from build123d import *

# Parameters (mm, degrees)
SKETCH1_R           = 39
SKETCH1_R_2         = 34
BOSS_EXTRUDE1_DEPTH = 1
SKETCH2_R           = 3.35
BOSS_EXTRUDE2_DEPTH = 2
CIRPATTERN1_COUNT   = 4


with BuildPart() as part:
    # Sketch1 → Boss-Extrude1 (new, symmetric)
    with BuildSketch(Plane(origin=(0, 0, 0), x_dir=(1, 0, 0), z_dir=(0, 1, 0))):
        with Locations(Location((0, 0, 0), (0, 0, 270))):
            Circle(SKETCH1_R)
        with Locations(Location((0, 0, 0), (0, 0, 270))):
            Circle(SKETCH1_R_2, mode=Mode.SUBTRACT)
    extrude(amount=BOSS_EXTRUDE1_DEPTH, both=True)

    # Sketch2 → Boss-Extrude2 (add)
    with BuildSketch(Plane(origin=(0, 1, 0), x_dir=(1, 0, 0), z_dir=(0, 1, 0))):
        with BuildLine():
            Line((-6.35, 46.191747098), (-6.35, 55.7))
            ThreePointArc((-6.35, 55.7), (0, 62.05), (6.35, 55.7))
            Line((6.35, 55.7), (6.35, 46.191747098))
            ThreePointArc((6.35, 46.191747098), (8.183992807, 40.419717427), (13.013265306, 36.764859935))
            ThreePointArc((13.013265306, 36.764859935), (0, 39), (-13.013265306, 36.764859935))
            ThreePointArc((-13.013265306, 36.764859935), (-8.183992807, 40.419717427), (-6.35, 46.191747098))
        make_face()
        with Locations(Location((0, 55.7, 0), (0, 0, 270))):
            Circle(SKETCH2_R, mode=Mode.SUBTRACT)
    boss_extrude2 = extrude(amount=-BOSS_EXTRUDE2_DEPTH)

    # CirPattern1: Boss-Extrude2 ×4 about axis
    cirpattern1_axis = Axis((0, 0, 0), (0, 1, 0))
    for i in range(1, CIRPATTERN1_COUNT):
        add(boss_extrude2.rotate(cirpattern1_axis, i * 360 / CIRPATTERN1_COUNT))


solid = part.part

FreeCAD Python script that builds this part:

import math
import FreeCAD as App
import Part
import Sketcher

V = App.Vector

doc = App.newDocument("Part")
body = doc.addObject("PartDesign::Body", "Body")

sketch1 = body.newObject("Sketcher::SketchObject", "Sketch")
sketch1.AttachmentSupport = (doc.getObject("XZ_Plane"), [""])
sketch1.MapMode = "FlatFace"
sketch1.addGeometry([
    Part.Circle(V(0, 0, 0), V(0, 0, 1), 39),
    Part.Circle(V(0, 0, 0), V(0, 0, 1), 34),
], False)
sketch1.addConstraint([
    Sketcher.Constraint("Coincident", 0, 3, -1, 1),
    Sketcher.Constraint("Coincident", 1, 3, -1, 1),
    Sketcher.Constraint("Diameter", 0, 78.0),
    Sketcher.Constraint("Diameter", 1, 68.0),
])
pad1 = body.newObject("PartDesign::Pad", "Pad")
pad1.Profile = sketch1
pad1.Length = 2
pad1.Midplane = True

sketch2 = body.newObject("Sketcher::SketchObject", "Sketch001")
sketch2.AttachmentSupport = (doc.getObject("XZ_Plane"), [""])
sketch2.MapMode = "FlatFace"
sketch2.AttachmentOffset = App.Placement(V(0, 0, -1), App.Rotation())
sketch2.addGeometry([
    Part.LineSegment(V(-6.35, -55.7, 0), V(-6.35, -46.191747, 0)),
    Part.ArcOfCircle(Part.Circle(V(-16.35, -46.191747, 0), V(0, 0, 1), 10), math.radians(0), math.radians(70.508108)),
    Part.ArcOfCircle(Part.Circle(V(0, 0, 0), V(0, 0, 1), 39), math.radians(-109.491892), math.radians(-70.508108)),
    Part.ArcOfCircle(Part.Circle(V(16.35, -46.191747, 0), V(0, 0, 1), 10), math.radians(109.491892), math.radians(180)),
    Part.LineSegment(V(6.35, -46.191747, 0), V(6.35, -55.7, 0)),
    Part.ArcOfCircle(Part.Circle(V(0, -55.7, 0), V(0, 0, 1), 6.35), math.radians(180), math.radians(360)),
    Part.Circle(V(0, -55.7, 0), V(0, 0, 1), 3.35),
], False)
sketch2.addConstraint([
    Sketcher.Constraint("Tangent", 0, 2, 1, 1),
    Sketcher.Constraint("Tangent", 1, 2, 2, 1),
    Sketcher.Constraint("Tangent", 2, 2, 3, 1),
    Sketcher.Constraint("Tangent", 3, 2, 4, 1),
    Sketcher.Constraint("Tangent", 4, 2, 5, 2),
    Sketcher.Constraint("Tangent", 5, 1, 0, 1),
    Sketcher.Constraint("Vertical", 0),
    Sketcher.Constraint("Vertical", 4),
    Sketcher.Constraint("Coincident", 2, 3, -1, 1),
    Sketcher.Constraint("Coincident", 6, 3, 5, 3),
    Sketcher.Constraint("Equal", 1, 3),
    Sketcher.Constraint("PointOnObject", 5, 3, -2),
    Sketcher.Constraint("Radius", 1, 10.0),
    Sketcher.Constraint("Radius", 2, 39.0),
    Sketcher.Constraint("Diameter", 6, 6.7),
    Sketcher.Constraint("Radius", 5, 6.35),
    Sketcher.Constraint("DistanceY", 5, 3, -1, 1, 55.7),
])
pad2 = body.newObject("PartDesign::Pad", "Pad001")
pad2.Profile = sketch2
pad2.Length = 2
doc.recompute()

polarpattern = body.newObject("PartDesign::PolarPattern", "PolarPattern")
polarpattern.Originals = [pad2]
polarpattern.Axis = (doc.getObject("Y_Axis"), [""])
polarpattern.Angle = 360
polarpattern.Occurrences = 4
body.Tip = polarpattern

doc.recompute()
